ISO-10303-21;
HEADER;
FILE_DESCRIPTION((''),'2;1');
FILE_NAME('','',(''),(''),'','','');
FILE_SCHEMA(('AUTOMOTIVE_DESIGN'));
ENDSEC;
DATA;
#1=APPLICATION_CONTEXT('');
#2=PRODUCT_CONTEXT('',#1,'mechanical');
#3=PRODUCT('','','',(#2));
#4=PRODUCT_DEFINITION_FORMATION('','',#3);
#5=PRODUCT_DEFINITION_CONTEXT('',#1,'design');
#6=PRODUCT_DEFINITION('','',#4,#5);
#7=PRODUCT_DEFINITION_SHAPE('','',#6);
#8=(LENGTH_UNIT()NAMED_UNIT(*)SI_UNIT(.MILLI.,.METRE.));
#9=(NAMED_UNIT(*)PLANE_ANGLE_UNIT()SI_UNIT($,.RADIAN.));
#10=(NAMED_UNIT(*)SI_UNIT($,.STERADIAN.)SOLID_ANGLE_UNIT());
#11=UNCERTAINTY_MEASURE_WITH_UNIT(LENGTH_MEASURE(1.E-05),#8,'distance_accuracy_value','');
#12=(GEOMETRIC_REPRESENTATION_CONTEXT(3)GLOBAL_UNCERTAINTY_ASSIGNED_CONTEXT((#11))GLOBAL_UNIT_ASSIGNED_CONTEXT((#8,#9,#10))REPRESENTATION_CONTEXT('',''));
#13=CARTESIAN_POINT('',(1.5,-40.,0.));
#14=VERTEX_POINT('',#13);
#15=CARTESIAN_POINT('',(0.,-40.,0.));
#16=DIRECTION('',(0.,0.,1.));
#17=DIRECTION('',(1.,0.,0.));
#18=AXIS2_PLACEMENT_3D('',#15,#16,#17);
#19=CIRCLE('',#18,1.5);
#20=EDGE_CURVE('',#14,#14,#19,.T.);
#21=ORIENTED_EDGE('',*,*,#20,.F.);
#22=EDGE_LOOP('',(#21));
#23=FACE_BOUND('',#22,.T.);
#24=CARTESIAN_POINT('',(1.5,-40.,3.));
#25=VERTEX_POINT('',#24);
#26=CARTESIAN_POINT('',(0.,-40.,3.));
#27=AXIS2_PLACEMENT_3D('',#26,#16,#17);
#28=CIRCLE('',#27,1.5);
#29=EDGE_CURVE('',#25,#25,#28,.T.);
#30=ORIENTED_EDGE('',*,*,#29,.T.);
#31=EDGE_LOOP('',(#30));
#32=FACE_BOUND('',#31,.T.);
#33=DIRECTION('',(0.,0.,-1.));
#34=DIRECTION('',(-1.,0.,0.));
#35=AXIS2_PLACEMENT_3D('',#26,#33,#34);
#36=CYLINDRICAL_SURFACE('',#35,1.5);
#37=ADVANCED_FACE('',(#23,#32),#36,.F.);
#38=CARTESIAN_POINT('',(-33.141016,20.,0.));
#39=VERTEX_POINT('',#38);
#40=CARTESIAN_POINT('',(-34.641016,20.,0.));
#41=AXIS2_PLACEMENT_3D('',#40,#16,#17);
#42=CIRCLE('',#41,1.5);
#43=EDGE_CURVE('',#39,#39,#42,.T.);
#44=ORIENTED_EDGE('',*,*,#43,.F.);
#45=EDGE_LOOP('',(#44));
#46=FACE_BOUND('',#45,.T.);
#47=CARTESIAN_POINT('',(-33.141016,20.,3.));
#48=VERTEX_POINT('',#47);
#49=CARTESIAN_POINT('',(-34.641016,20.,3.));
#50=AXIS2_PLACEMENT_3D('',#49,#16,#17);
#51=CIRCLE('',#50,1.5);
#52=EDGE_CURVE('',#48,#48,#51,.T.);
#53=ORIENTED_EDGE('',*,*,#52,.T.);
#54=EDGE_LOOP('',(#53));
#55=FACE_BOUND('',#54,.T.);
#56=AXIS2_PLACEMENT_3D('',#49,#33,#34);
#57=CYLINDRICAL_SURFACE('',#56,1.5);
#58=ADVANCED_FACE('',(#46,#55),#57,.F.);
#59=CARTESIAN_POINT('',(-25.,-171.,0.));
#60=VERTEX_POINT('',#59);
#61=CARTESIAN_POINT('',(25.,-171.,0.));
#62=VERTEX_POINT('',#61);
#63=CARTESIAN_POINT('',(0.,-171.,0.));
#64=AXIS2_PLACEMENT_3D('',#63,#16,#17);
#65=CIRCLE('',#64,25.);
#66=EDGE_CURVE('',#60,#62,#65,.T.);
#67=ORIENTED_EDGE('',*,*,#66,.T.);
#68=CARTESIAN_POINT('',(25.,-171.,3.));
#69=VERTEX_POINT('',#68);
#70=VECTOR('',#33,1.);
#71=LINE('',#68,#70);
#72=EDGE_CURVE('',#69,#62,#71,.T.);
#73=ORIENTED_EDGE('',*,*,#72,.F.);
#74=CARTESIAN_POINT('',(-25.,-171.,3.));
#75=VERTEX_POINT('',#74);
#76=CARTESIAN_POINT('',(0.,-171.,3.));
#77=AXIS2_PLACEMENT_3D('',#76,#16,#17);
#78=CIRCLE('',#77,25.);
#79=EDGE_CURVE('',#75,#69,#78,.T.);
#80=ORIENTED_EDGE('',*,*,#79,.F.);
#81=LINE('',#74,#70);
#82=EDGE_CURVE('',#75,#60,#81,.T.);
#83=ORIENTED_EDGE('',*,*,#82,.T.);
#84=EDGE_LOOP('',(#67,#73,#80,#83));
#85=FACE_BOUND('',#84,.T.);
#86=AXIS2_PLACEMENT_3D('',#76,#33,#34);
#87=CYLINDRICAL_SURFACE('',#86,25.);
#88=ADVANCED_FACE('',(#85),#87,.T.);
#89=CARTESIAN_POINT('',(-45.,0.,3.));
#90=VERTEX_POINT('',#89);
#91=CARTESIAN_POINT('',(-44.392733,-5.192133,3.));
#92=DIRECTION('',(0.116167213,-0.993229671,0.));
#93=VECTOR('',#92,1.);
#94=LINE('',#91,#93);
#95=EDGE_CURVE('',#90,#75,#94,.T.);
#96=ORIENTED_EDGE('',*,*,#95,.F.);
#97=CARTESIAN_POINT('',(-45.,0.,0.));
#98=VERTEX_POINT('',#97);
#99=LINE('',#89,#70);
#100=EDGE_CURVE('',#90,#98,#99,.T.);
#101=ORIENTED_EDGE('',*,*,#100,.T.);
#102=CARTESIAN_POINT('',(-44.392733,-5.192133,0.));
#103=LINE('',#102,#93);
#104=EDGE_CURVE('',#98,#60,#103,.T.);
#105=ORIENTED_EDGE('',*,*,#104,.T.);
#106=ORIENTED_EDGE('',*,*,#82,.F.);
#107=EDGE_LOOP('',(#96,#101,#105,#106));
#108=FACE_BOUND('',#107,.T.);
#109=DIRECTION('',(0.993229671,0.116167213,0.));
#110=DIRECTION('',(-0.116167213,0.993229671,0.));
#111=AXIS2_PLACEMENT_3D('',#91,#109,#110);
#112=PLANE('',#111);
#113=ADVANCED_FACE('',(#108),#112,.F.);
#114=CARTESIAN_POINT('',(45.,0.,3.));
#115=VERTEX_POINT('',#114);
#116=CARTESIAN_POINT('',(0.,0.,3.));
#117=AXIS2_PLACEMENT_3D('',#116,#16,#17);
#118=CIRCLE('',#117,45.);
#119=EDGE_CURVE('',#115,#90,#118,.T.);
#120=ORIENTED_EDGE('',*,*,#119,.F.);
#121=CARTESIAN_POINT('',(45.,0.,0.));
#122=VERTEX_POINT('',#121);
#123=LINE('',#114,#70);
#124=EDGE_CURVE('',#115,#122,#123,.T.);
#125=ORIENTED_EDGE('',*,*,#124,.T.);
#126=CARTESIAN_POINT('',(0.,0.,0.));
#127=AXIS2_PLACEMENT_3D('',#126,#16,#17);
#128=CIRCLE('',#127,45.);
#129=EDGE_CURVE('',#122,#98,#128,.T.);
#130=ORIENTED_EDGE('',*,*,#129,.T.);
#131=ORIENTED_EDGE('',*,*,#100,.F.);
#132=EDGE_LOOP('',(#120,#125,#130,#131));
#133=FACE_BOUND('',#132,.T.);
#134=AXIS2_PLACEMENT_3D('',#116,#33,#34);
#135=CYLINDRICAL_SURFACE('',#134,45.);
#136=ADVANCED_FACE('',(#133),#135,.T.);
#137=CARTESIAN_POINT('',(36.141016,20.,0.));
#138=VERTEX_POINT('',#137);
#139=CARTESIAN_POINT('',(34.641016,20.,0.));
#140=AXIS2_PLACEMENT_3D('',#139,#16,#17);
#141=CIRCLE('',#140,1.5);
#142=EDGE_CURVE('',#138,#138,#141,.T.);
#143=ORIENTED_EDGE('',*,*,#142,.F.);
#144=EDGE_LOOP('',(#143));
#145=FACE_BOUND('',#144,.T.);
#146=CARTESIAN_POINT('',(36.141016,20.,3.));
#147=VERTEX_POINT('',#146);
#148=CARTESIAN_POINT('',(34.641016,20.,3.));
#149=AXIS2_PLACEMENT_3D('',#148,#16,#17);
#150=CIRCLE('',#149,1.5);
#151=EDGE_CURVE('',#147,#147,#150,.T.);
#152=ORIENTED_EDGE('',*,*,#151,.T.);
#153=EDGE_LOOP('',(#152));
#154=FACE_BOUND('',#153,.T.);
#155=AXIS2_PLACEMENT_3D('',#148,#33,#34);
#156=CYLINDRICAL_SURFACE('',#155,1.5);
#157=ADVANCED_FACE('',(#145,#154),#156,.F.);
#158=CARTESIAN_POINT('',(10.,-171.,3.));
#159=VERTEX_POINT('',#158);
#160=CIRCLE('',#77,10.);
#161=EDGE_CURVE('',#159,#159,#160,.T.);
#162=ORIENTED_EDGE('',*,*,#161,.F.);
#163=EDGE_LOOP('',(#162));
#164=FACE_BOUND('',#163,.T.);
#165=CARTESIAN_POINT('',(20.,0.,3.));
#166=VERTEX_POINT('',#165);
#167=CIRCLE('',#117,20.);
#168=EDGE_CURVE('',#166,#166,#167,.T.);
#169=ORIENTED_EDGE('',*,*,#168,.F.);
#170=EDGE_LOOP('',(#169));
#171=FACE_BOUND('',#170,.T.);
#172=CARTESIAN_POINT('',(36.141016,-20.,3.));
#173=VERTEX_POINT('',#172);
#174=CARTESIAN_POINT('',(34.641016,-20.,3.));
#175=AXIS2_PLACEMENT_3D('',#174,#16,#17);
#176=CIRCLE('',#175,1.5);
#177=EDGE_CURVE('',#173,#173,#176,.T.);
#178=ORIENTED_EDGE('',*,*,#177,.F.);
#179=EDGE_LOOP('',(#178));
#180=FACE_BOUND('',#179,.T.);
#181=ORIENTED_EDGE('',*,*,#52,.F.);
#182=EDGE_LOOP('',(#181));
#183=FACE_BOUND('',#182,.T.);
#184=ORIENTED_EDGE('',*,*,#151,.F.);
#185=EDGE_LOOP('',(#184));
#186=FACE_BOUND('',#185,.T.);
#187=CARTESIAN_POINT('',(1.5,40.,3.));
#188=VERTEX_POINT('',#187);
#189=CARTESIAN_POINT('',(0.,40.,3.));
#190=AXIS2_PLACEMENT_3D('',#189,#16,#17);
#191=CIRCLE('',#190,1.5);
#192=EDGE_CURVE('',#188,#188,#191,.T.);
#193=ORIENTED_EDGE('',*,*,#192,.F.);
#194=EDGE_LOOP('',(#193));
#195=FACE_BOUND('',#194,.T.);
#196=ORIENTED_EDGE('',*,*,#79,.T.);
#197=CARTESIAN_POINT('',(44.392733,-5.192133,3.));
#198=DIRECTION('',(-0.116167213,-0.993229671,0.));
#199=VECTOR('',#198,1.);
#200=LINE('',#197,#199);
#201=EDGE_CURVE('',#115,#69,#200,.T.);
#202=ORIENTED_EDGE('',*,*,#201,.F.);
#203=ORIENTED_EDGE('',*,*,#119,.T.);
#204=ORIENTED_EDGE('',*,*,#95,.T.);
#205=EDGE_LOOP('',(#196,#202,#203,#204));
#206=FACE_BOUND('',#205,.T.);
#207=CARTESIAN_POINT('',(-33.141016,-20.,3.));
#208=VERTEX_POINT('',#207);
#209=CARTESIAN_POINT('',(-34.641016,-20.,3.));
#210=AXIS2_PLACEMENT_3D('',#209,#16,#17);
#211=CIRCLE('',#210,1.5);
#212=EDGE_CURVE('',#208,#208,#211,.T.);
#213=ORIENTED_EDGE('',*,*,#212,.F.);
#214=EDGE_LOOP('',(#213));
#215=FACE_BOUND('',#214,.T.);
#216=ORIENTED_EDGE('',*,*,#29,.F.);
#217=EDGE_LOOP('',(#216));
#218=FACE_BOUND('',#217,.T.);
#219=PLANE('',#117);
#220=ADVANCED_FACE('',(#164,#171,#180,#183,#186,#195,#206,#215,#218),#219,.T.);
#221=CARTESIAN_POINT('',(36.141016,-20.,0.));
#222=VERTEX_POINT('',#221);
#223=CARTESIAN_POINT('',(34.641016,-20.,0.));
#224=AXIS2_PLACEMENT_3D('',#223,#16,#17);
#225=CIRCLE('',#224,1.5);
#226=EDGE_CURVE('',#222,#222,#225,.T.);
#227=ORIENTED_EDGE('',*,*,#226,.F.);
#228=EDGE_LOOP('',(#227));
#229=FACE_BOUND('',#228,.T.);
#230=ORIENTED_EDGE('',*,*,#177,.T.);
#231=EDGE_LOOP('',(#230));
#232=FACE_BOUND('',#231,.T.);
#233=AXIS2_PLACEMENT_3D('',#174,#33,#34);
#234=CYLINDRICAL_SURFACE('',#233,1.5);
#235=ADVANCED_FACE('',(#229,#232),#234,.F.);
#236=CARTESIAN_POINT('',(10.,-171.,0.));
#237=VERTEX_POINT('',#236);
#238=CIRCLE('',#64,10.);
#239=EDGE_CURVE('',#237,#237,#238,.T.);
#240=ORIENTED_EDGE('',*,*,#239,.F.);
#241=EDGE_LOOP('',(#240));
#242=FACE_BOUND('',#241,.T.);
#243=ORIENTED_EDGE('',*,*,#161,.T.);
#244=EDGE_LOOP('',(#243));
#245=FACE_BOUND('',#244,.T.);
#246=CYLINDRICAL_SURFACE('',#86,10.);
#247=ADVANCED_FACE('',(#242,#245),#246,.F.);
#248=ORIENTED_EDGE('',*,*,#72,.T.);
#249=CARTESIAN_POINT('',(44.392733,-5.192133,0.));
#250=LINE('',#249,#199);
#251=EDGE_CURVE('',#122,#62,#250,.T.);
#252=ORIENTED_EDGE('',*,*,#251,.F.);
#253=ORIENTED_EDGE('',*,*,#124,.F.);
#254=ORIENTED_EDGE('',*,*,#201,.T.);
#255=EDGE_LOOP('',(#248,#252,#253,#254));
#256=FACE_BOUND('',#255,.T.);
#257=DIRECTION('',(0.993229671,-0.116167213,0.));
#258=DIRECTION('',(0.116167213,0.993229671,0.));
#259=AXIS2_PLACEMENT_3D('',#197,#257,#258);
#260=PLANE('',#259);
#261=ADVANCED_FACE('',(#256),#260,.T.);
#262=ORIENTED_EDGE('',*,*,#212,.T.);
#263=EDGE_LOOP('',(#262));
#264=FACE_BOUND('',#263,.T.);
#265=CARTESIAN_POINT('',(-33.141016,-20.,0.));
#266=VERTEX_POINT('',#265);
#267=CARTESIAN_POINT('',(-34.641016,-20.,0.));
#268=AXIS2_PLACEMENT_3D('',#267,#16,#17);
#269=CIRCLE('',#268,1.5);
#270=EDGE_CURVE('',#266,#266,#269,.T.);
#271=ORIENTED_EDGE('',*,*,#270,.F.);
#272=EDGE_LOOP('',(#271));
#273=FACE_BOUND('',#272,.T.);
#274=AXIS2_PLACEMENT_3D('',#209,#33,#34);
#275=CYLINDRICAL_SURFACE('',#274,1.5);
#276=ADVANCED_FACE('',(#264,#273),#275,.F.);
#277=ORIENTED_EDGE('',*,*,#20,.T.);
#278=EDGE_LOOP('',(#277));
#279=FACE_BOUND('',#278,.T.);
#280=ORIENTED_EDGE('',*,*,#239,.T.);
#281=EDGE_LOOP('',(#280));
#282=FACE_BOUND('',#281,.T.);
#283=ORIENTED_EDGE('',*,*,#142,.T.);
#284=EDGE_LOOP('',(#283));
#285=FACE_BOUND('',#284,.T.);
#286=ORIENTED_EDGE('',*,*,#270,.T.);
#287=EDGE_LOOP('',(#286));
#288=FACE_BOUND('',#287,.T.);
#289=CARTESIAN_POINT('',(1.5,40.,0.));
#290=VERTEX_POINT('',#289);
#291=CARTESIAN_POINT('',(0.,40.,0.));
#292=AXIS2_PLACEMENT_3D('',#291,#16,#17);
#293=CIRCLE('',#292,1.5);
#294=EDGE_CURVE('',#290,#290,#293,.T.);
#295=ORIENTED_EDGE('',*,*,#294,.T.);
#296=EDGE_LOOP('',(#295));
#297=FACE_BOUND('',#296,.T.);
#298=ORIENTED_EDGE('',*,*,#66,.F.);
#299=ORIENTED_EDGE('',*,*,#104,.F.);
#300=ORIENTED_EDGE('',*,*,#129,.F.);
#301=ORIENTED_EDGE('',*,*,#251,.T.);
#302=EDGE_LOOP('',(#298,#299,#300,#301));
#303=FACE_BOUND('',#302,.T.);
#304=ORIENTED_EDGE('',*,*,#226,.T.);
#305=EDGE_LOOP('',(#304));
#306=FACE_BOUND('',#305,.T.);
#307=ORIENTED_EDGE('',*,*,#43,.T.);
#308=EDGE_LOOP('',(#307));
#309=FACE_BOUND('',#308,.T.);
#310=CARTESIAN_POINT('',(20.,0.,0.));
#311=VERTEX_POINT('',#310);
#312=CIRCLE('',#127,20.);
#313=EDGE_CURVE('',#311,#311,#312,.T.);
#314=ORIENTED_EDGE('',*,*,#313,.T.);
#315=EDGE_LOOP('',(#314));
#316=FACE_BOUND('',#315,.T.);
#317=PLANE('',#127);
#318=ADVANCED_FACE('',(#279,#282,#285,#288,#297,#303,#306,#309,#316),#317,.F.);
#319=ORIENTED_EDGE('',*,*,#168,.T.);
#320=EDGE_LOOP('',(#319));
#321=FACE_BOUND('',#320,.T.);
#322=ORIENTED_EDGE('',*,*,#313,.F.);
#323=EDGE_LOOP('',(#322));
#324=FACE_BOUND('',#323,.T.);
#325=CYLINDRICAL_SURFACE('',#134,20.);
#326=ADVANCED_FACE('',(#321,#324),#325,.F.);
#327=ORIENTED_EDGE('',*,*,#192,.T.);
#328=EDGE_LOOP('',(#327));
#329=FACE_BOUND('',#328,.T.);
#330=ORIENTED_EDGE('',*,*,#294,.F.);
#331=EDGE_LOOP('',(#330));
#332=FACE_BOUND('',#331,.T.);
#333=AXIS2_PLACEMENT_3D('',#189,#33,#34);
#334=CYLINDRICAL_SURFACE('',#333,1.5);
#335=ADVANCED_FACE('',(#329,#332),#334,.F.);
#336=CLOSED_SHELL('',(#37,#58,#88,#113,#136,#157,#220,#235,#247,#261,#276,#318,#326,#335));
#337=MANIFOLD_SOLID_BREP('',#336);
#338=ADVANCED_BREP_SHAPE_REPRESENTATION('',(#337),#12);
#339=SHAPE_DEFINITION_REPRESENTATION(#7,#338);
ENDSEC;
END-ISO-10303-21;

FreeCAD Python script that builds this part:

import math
import FreeCAD as App
import Part
import Sketcher

doc = App.newDocument("Part")
body = doc.addObject("PartDesign::Body", "Body")

sketch1 = body.newObject("Sketcher::SketchObject", "Sketch")
sketch1.AttachmentSupport = (doc.getObject("XY_Plane"), [""])
sketch1.MapMode = "FlatFace"
sketch1.addGeometry(Part.ArcOfCircle(Part.Circle(App.Vector(0, 0, 0), App.Vector(0, 0, 1), 45), math.radians(0), math.radians(180)), False)
sketch1.addGeometry(Part.LineSegment(App.Vector(-45, 0, 0), App.Vector(-43.785466, -10.384265, 0)), False)
sketch1.addGeometry(Part.LineSegment(App.Vector(-43.785466, -10.384265, 0), App.Vector(-25, -171, 0)), False)
sketch1.addGeometry(Part.ArcOfCircle(Part.Circle(App.Vector(0, -171, 0), App.Vector(0, 0, 1), 25), math.radians(180), math.radians(360)), False)
sketch1.addGeometry(Part.LineSegment(App.Vector(25, -171, 0), App.Vector(43.785466, -10.384265, 0)), False)
sketch1.addGeometry(Part.LineSegment(App.Vector(43.785466, -10.384265, 0), App.Vector(45, 0, 0)), False)
sketch1.addGeometry(Part.Circle(App.Vector(0, -171, 0), App.Vector(0, 0, 1), 10), False)
sketch1.addGeometry(Part.Circle(App.Vector(-34.641016, -20, 0), App.Vector(0, 0, 1), 1.5), False)
sketch1.addGeometry(Part.Circle(App.Vector(-34.641016, 20, 0), App.Vector(0, 0, 1), 1.5), False)
sketch1.addGeometry(Part.Circle(App.Vector(0, -40, 0), App.Vector(0, 0, 1), 1.5), False)
sketch1.addGeometry(Part.Circle(App.Vector(34.641016, -20, 0), App.Vector(0, 0, 1), 1.5), False)
sketch1.addGeometry(Part.Circle(App.Vector(0, 0, 0), App.Vector(0, 0, 1), 20), False)
sketch1.addGeometry(Part.Circle(App.Vector(0, 40, 0), App.Vector(0, 0, 1), 1.5), False)
sketch1.addGeometry(Part.Circle(App.Vector(34.641016, 20, 0), App.Vector(0, 0, 1), 1.5), False)
sketch1.addConstraint(Sketcher.Constraint("Coincident", 0, 2, 1, 1))
sketch1.addConstraint(Sketcher.Constraint("Coincident", 1, 2, 2, 1))
sketch1.addConstraint(Sketcher.Constraint("Coincident", 2, 2, 3, 1))
sketch1.addConstraint(Sketcher.Constraint("Coincident", 3, 2, 4, 1))
sketch1.addConstraint(Sketcher.Constraint("Coincident", 4, 2, 5, 1))
sketch1.addConstraint(Sketcher.Constraint("Coincident", 5, 2, 0, 1))
sketch1.addConstraint(Sketcher.Constraint("Coincident", 0, 3, -1, 1))
sketch1.addConstraint(Sketcher.Constraint("Coincident", 11, 3, -1, 1))
sketch1.addConstraint(Sketcher.Constraint("Coincident", 6, 3, 3, 3))
sketch1.addConstraint(Sketcher.Constraint("Equal", 7, 8))
sketch1.addConstraint(Sketcher.Constraint("Equal", 8, 9))
sketch1.addConstraint(Sketcher.Constraint("Equal", 9, 10))
sketch1.addConstraint(Sketcher.Constraint("Equal", 10, 12))
sketch1.addConstraint(Sketcher.Constraint("Equal", 12, 13))
sketch1.addConstraint(Sketcher.Constraint("Symmetric", 8, 3, 10, 3, -1, 1))
sketch1.addConstraint(Sketcher.Constraint("Symmetric", 9, 3, 12, 3, -1, 1))
sketch1.addConstraint(Sketcher.Constraint("Symmetric", 7, 3, 13, 3, -1, 1))
sketch1.addConstraint(Sketcher.Constraint("Symmetric", 7, 3, 10, 3, -2))
sketch1.addConstraint(Sketcher.Constraint("Symmetric", 2, 2, 3, 2, -2))
sketch1.addConstraint(Sketcher.Constraint("Symmetric", 1, 2, 4, 2, -2))
sketch1.addConstraint(Sketcher.Constraint("PointOnObject", 9, 3, -2))
sketch1.addConstraint(Sketcher.Constraint("PointOnObject", 0, 2, -1))
sketch1.addConstraint(Sketcher.Constraint("PointOnObject", 5, 2, -1))
sketch1.addConstraint(Sketcher.Constraint("Parallel", 1, 2))
sketch1.addConstraint(Sketcher.Constraint("Horizontal", 6, 3, 2, 2))
sketch1.addConstraint(Sketcher.Constraint("Diameter", 6, 20.0))
sketch1.addConstraint(Sketcher.Constraint("Diameter", 7, 3.0))
sketch1.addConstraint(Sketcher.Constraint("Diameter", 11, 40.0))
sketch1.addConstraint(Sketcher.Constraint("Radius", 0, 45.0))
sketch1.addConstraint(Sketcher.Constraint("Radius", 3, 25.0))
sketch1.addConstraint(Sketcher.Constraint("DistanceY", 3, 3, -1, 1, 171.0))
sketch1.addConstraint(Sketcher.Constraint("DistanceY", 7, 3, -1, 1, 20.0))
sketch1.addConstraint(Sketcher.Constraint("DistanceY", 9, 3, -1, 1, 40.0))
sketch1.addConstraint(Sketcher.Constraint("Distance", 1, 10.455049))
sketch1.addConstraint(Sketcher.Constraint("DistanceX", 1, 2, 7, 3, 9.14445))
pad1 = body.newObject("PartDesign::Pad", "Pad")
pad1.Profile = sketch1
pad1.Length = 3

doc.recompute()
